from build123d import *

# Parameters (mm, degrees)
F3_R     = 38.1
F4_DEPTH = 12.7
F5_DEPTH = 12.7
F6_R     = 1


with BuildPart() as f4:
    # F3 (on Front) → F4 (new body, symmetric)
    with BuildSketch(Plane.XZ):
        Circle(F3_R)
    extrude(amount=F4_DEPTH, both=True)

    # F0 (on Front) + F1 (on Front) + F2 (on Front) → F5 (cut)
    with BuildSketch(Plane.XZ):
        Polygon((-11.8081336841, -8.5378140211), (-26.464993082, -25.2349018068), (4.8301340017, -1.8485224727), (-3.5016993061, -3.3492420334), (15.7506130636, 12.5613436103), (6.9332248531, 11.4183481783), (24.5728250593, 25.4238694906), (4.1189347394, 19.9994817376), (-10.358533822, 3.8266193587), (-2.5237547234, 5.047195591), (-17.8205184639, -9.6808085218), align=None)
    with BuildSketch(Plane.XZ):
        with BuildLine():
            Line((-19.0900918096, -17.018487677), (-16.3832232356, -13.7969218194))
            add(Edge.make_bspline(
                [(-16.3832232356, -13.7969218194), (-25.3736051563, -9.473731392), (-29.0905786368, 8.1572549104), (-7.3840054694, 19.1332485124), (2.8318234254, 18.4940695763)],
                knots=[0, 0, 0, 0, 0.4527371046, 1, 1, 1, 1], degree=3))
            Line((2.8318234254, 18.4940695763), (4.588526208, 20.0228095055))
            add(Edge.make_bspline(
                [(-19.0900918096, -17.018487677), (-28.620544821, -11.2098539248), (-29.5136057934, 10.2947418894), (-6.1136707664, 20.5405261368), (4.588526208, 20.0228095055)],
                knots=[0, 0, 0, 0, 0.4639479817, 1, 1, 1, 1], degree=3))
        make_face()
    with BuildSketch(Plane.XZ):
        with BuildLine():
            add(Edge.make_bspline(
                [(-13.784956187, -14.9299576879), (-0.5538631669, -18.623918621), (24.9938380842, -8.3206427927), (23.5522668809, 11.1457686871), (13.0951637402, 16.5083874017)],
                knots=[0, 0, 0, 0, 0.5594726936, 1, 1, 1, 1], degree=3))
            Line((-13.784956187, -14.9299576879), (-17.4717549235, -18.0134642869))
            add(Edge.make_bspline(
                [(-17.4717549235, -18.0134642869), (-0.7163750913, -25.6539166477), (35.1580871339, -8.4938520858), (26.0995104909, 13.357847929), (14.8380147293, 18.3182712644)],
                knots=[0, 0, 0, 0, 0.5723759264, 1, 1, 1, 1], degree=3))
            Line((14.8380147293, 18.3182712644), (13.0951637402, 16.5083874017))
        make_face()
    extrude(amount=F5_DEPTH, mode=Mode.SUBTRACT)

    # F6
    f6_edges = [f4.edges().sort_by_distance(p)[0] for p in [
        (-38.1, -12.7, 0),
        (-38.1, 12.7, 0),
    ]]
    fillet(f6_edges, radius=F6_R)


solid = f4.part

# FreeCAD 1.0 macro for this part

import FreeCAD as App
import Part
import Sketcher

V = App.Vector
Q = App.Units.Quantity


def edges_at(feature, points):
    """Names of the edges that pass closest to the given points."""
    edges = feature.Shape.Edges
    near = lambda p: min(range(len(edges)), key=lambda i: edges[i].distToShape(Part.Vertex(*p))[0])
    return sorted({f"Edge{near(p) + 1}" for p in points})

doc = App.newDocument("Part")
params = doc.addObject("Spreadsheet::Sheet", "Params")
for row, (alias, value) in enumerate([
    ("sketch1_diameter", "3 in"),
    ("pad1_length", "1 in"),
    ("pocket1_length", "0.5 in"),
    ("fillet_radius", "1 mm"),
], start=1):
    params.set(f"A{row}", alias)
    params.set(f"B{row}", "=" + value)
    params.setAlias(f"B{row}", alias)

body = doc.addObject("PartDesign::Body", "Body")

# Sketch on XZ plane
sketch1 = body.newObject("Sketcher::SketchObject", "Sketch")
sketch1.AttachmentSupport = (doc.getObject("XZ_Plane"), [""])
sketch1.MapMode = "FlatFace"
sketch1.addGeometry(Part.Circle(V(0, 0, 0), V(0, 0, 1), 38.1), False)
sketch1.addConstraint([
    Sketcher.Constraint("Coincident", 0, 3, -1, 1),
    Sketcher.Constraint("Diameter", 0, Q("3 in")),
])
sketch1.setExpression("Constraints[1]", "Params.sketch1_diameter")
pad1 = body.newObject("PartDesign::Pad", "Pad")
pad1.Profile = sketch1
pad1.setExpression("Length", "Params.pad1_length")
pad1.Midplane = True

# Sketch on XZ plane
sketch2 = body.newObject("Sketcher::SketchObject", "Sketch001")
sketch2.AttachmentSupport = (doc.getObject("XZ_Plane"), [""])
sketch2.MapMode = "FlatFace"
sketch2.addGeometry([
    Part.LineSegment(V(24.572825, 25.423869, 0), V(4.259682, 20.036808, 0)),  # 0
    Part.BSplineCurve([V(-19.195697, -16.953723, 0), V(-28.623545, -11.135923, 0), V(-29.468698, 10.194603, 0), V(-6.369447, 20.427875, 0), V(4.259682, 20.036808, 0)], [4, 1, 4], [0.001719735, 0.463947982, 0.99451909], False, 3, [1, 1, 1, 1, 1], False),  # 1
    Part.LineSegment(V(-19.195697, -16.953723, 0), V(-26.464993, -25.234902, 0)),  # 2
    Part.LineSegment(V(-26.464993, -25.234902, 0), V(-17.052148, -18.200823, 0)),  # 3
    Part.BSplineCurve([V(-17.052148, -18.200823, 0), V(-0.375213, -25.490131, 0), V(34.886478, -8.499693, 0), V(26.21371, 13.078115, 0), V(15.339076, 18.092441, 0)], [4, 1, 4], [0.004769192, 0.572375926, 0.993594887], False, 3, [1, 1, 1, 1, 1], False),  # 4
    Part.LineSegment(V(15.339076, 18.092441, 0), V(24.572825, 25.423869, 0)),  # 5
    Part.LineSegment(V(-17.820518, -9.680809, 0), V(-11.808134, -8.537814, 0)),  # 6
    Part.LineSegment(V(-11.808134, -8.537814, 0), V(-16.412322, -13.782904, 0)),  # 7
    Part.BSplineCurve([V(-16.412322, -13.782904, 0), V(-25.377233, -9.456494, 0), V(-29.076175, 8.144577, 0), V(-7.428417, 19.110771, 0), V(2.774482, 18.497586, 0)], [4, 1, 4], [0.000488888, 0.452737105, 0.99897639], False, 3, [1, 1, 1, 1, 1], False),  # 8
    Part.LineSegment(V(2.774482, 18.497586, 0), V(-10.358534, 3.826619, 0)),  # 9
    Part.LineSegment(V(-10.358534, 3.826619, 0), V(-2.523755, 5.047196, 0)),  # 10
    Part.LineSegment(V(-2.523755, 5.047196, 0), V(-17.820518, -9.680809, 0)),  # 11
    Part.LineSegment(V(6.933225, 11.418348, 0), V(13.24591, 16.430506, 0)),  # 12
    Part.BSplineCurve([V(-12.964952, -15.146523, 0), V(0.032181, -18.3849, 0), V(24.923538, -8.118136, 0), V(23.558276, 11.063021, 0), V(13.24591, 16.430506, 0)], [4, 1, 4], [0.011539945, 0.559472694, 0.997873527], False, 3, [1, 1, 1, 1, 1], False),  # 13
    Part.LineSegment(V(-12.964952, -15.146523, 0), V(4.830134, -1.848522, 0)),  # 14
    Part.LineSegment(V(4.830134, -1.848522, 0), V(-3.501699, -3.349242, 0)),  # 15
    Part.LineSegment(V(-3.501699, -3.349242, 0), V(15.750613, 12.561344, 0)),  # 16
    Part.LineSegment(V(15.750613, 12.561344, 0), V(6.933225, 11.418348, 0)),  # 17
], False)
sketch2.addConstraint([
    Sketcher.Constraint("Block", 1),
    Sketcher.Constraint("Block", 4),
    Sketcher.Constraint("Block", 8),
    Sketcher.Constraint("Block", 13),
    Sketcher.Constraint("Coincident", 0, 2, 1, 2),
    Sketcher.Constraint("Coincident", 1, 1, 2, 1),
    Sketcher.Constraint("Coincident", 2, 2, 3, 1),
    Sketcher.Constraint("Coincident", 3, 2, 4, 1),
    Sketcher.Constraint("Coincident", 4, 2, 5, 1),
    Sketcher.Constraint("Coincident", 5, 2, 0, 1),
    Sketcher.Constraint("Coincident", 6, 2, 7, 1),
    Sketcher.Constraint("Coincident", 7, 2, 8, 1),
    Sketcher.Constraint("Coincident", 8, 2, 9, 1),
    Sketcher.Constraint("Coincident", 9, 2, 10, 1),
    Sketcher.Constraint("Coincident", 10, 2, 11, 1),
    Sketcher.Constraint("Coincident", 11, 2, 6, 1),
    Sketcher.Constraint("Coincident", 12, 2, 13, 2),
    Sketcher.Constraint("Coincident", 13, 1, 14, 1),
    Sketcher.Constraint("Coincident", 14, 2, 15, 1),
    Sketcher.Constraint("Coincident", 15, 2, 16, 1),
    Sketcher.Constraint("Coincident", 16, 2, 17, 1),
    Sketcher.Constraint("Coincident", 17, 2, 12, 1),
    Sketcher.Constraint("Parallel", 2, 7),
    Sketcher.Constraint("Parallel", 5, 12),
    Sketcher.Constraint("Parallel", 3, 14),
    Sketcher.Constraint("DistanceY", 17, 2, 16, 2, Q("0.0449998 in")),
    Sketcher.Constraint("DistanceY", 2, 2, -1, 1, Q("0.9935001 in")),
    Sketcher.Constraint("DistanceY", 7, 2, 11, 2, Q("0.1614998 in")),
    Sketcher.Constraint("Distance", 2, Q("11.019101 mm")),
    Sketcher.Constraint("DistanceX", 15, 2, -1, 1, Q("3.501699 mm")),
    Sketcher.Constraint("DistanceX", 6, 2, 9, 2, Q("1.4496 mm")),
    Sketcher.Constraint("DistanceY", 7, 2, 10, 2, Q("18.830099 mm")),
    Sketcher.Constraint("Distance", 7, Q("6.979221 mm")),
    Sketcher.Constraint("Distance", 9, Q("19.690439 mm")),
    Sketcher.Constraint("Distance", 15, Q("8.465908 mm")),
    Sketcher.Constraint("DistanceY", -1, 1, 5, 2, Q("25.423869 mm")),
    Sketcher.Constraint("DistanceX", 11, 2, -1, 1, Q("17.820518 mm")),
    Sketcher.Constraint("DistanceY", -1, 1, 17, 2, Q("11.418348 mm")),
    Sketcher.Constraint("DistanceX", 2, 2, 5, 2, Q("51.037818 mm")),
    Sketcher.Constraint("DistanceX", 9, 2, 10, 2, Q("7.834779 mm")),
    Sketcher.Constraint("DistanceX", 10, 2, 14, 2, Q("7.353889 mm")),
    Sketcher.Constraint("DistanceX", 0, 2, 16, 2, Q("11.490932 mm")),
])
pocket1 = body.newObject("PartDesign::Pocket", "Pocket")
pocket1.Profile = sketch2
pocket1.setExpression("Length", "Params.pocket1_length")
pocket1.Reversed = True
doc.recompute()

fillet = body.newObject("PartDesign::Fillet", "Fillet")
fillet.Base = (pocket1, edges_at(pocket1, [(-38.1, -12.7, 0), (-38.1, 12.7, 0)]))
fillet.setExpression("Radius", "Params.fillet_radius")

doc.recompute()
